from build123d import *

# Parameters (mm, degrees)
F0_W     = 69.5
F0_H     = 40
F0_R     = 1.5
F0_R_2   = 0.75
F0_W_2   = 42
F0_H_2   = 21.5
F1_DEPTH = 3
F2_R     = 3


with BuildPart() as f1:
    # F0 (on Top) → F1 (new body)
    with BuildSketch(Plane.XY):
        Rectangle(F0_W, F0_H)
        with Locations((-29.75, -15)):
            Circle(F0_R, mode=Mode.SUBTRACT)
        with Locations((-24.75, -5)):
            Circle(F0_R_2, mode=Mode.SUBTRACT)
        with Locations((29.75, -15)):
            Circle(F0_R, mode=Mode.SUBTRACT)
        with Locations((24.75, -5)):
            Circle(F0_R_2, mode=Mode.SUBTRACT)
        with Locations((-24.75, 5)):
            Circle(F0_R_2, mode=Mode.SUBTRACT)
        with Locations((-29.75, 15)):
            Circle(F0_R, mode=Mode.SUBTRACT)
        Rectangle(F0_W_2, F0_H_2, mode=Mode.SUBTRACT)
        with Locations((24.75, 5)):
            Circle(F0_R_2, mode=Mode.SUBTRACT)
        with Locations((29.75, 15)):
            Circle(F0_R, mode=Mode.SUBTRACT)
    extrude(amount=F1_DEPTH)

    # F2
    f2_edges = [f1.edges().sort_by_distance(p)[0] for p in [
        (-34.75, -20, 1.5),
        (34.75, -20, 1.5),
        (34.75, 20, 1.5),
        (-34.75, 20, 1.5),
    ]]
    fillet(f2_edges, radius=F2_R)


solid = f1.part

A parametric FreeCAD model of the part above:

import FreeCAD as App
import Part
import Sketcher
from FreeCAD import Vector
Q = App.Units.Quantity


def edges_at(feature, points):
    """Names of the edges that pass closest to the given points."""
    edges = feature.Shape.Edges
    near = lambda p: min(range(len(edges)), key=lambda i: edges[i].distToShape(Part.Vertex(*p))[0])
    return sorted({f"Edge{near(p) + 1}" for p in points})


def add_polygon(sketch, points):
    """Adds a closed chain of lines whose ends are joined by coincident constraints."""
    first, n = sketch.GeometryCount, len(points)
    for a, b in zip(points, points[1:] + points[:1]):
        sketch.addGeometry(Part.LineSegment(App.Vector(*a, 0), App.Vector(*b, 0)), False)
    for i in range(n):
        sketch.addConstraint(Sketcher.Constraint("Coincident", first + i, 2, first + (i + 1) % n, 1))

doc = App.newDocument("Part")
params = doc.addObject("Spreadsheet::Sheet", "Params")
for row, (alias, value) in enumerate([
    ("sketch1_diameter", "3 mm"),
    ("sketch1_diameter2", "1.5 mm"),
    ("sketch1_width", "42 mm"),
    ("sketch1_height", "40 mm"),
    ("sketch1_width2", "69.5 mm"),
    ("pad1_length", "3 mm"),
    ("fillet_radius", "3 mm"),
], start=1):
    params.set(f"A{row}", alias)
    params.set(f"B{row}", "=" + value)
    params.setAlias(f"B{row}", alias)

body = doc.addObject("PartDesign::Body", "Body")

# Sketch on XY plane
sketch1 = body.newObject("Sketcher::SketchObject", "Sketch")
sketch1.AttachmentSupport = (doc.getObject("XY_Plane"), [""])
sketch1.MapMode = "FlatFace"
add_polygon(sketch1, [(-34.75, 20), (-34.75, -20), (34.75, -20), (34.75, 20)])  # lines 0-3
sketch1.addGeometry(Part.Circle(Vector(-29.75, -15, 0), Vector(0, 0, 1), 1.5), False)  # 4
sketch1.addGeometry(Part.Circle(Vector(-24.75, -5, 0), Vector(0, 0, 1), 0.75), False)  # 5
sketch1.addGeometry(Part.Circle(Vector(29.75, -15, 0), Vector(0, 0, 1), 1.5), False)  # 6
sketch1.addGeometry(Part.Circle(Vector(24.75, -5, 0), Vector(0, 0, 1), 0.75), False)  # 7
sketch1.addGeometry(Part.Circle(Vector(-24.75, 5, 0), Vector(0, 0, 1), 0.75), False)  # 8
sketch1.addGeometry(Part.Circle(Vector(-29.75, 15, 0), Vector(0, 0, 1), 1.5), False)  # 9
add_polygon(sketch1, [(21, -10.75), (-21, -10.75), (-21, 10.75), (21, 10.75)])  # lines 10-13
sketch1.addGeometry(Part.Circle(Vector(24.75, 5, 0), Vector(0, 0, 1), 0.75), False)  # 14
sketch1.addGeometry(Part.Circle(Vector(29.75, 15, 0), Vector(0, 0, 1), 1.5), False)  # 15
sketch1.addConstraint(Sketcher.Constraint("Vertical", 0))
sketch1.addConstraint(Sketcher.Constraint("Horizontal", 1))
sketch1.addConstraint(Sketcher.Constraint("Vertical", 2))
sketch1.addConstraint(Sketcher.Constraint("Horizontal", 3))
sketch1.addConstraint(Sketcher.Constraint("Horizontal", 10))
sketch1.addConstraint(Sketcher.Constraint("Vertical", 11))
sketch1.addConstraint(Sketcher.Constraint("Horizontal", 12))
sketch1.addConstraint(Sketcher.Constraint("Vertical", 13))
sketch1.addConstraint(Sketcher.Constraint("Equal", 4, 6))
sketch1.addConstraint(Sketcher.Constraint("Equal", 5, 7))
sketch1.addConstraint(Sketcher.Constraint("Equal", 7, 8))
sketch1.addConstraint(Sketcher.Constraint("Equal", 6, 9))
sketch1.addConstraint(Sketcher.Constraint("Equal", 8, 14))
sketch1.addConstraint(Sketcher.Constraint("Equal", 9, 15))
sketch1.addConstraint(Sketcher.Constraint("Symmetric", 7, 3, 8, 3, -1, 1))
sketch1.addConstraint(Sketcher.Constraint("Symmetric", 6, 3, 9, 3, -1, 1))
sketch1.addConstraint(Sketcher.Constraint("Symmetric", 5, 3, 14, 3, -1, 1))
sketch1.addConstraint(Sketcher.Constraint("Symmetric", 4, 3, 15, 3, -1, 1))
sketch1.addConstraint(Sketcher.Constraint("Symmetric", 0, 2, 2, 2, -1, 1))
sketch1.addConstraint(Sketcher.Constraint("Symmetric", 10, 2, 12, 2, -1, 1))
sketch1.addConstraint(Sketcher.Constraint("Symmetric", 4, 3, 6, 3, -2))
sketch1.addConstraint(Sketcher.Constraint("Symmetric", 5, 3, 7, 3, -2))
sketch1.addConstraint(Sketcher.Constraint("Diameter", 4, Q("3 mm")))
sketch1.addConstraint(Sketcher.Constraint("Diameter", 5, Q("1.5 mm")))
sketch1.addConstraint(Sketcher.Constraint("DistanceX", 10, 2, 10, 1, Q("42 mm")))
sketch1.addConstraint(Sketcher.Constraint("DistanceY", 0, 2, 0, 1, Q("40 mm")))
sketch1.addConstraint(Sketcher.Constraint("DistanceX", 1, 1, 1, 2, Q("69.5 mm")))
sketch1.addConstraint(Sketcher.Constraint("DistanceY", 11, 1, 11, 2, Q("21.5 mm")))
sketch1.addConstraint(Sketcher.Constraint("DistanceY", 4, 3, -1, 1, Q("15 mm")))
sketch1.addConstraint(Sketcher.Constraint("DistanceY", 5, 3, -1, 1, Q("5 mm")))
sketch1.addConstraint(Sketcher.Constraint("DistanceX", 4, 3, 5, 3, Q("5 mm")))
sketch1.addConstraint(Sketcher.Constraint("DistanceX", 0, 2, 4, 3, Q("5 mm")))
sketch1.setExpression("Constraints[30]", "Params.sketch1_diameter")
sketch1.setExpression("Constraints[31]", "Params.sketch1_diameter2")
sketch1.setExpression("Constraints[32]", "Params.sketch1_width")
sketch1.setExpression("Constraints[33]", "Params.sketch1_height")
sketch1.setExpression("Constraints[34]", "Params.sketch1_width2")
pad1 = body.newObject("PartDesign::Pad", "Pad")
pad1.Profile = sketch1
pad1.setExpression("Length", "Params.pad1_length")
doc.recompute()

fillet = body.newObject("PartDesign::Fillet", "Fillet")
fillet.Base = (pad1, edges_at(pad1, [
    (-34.75, -20, 1.5),
    (34.75, -20, 1.5),
    (34.75, 20, 1.5),
    (-34.75, 20, 1.5),
]))
fillet.setExpression("Radius", "Params.fillet_radius")

doc.recompute()
